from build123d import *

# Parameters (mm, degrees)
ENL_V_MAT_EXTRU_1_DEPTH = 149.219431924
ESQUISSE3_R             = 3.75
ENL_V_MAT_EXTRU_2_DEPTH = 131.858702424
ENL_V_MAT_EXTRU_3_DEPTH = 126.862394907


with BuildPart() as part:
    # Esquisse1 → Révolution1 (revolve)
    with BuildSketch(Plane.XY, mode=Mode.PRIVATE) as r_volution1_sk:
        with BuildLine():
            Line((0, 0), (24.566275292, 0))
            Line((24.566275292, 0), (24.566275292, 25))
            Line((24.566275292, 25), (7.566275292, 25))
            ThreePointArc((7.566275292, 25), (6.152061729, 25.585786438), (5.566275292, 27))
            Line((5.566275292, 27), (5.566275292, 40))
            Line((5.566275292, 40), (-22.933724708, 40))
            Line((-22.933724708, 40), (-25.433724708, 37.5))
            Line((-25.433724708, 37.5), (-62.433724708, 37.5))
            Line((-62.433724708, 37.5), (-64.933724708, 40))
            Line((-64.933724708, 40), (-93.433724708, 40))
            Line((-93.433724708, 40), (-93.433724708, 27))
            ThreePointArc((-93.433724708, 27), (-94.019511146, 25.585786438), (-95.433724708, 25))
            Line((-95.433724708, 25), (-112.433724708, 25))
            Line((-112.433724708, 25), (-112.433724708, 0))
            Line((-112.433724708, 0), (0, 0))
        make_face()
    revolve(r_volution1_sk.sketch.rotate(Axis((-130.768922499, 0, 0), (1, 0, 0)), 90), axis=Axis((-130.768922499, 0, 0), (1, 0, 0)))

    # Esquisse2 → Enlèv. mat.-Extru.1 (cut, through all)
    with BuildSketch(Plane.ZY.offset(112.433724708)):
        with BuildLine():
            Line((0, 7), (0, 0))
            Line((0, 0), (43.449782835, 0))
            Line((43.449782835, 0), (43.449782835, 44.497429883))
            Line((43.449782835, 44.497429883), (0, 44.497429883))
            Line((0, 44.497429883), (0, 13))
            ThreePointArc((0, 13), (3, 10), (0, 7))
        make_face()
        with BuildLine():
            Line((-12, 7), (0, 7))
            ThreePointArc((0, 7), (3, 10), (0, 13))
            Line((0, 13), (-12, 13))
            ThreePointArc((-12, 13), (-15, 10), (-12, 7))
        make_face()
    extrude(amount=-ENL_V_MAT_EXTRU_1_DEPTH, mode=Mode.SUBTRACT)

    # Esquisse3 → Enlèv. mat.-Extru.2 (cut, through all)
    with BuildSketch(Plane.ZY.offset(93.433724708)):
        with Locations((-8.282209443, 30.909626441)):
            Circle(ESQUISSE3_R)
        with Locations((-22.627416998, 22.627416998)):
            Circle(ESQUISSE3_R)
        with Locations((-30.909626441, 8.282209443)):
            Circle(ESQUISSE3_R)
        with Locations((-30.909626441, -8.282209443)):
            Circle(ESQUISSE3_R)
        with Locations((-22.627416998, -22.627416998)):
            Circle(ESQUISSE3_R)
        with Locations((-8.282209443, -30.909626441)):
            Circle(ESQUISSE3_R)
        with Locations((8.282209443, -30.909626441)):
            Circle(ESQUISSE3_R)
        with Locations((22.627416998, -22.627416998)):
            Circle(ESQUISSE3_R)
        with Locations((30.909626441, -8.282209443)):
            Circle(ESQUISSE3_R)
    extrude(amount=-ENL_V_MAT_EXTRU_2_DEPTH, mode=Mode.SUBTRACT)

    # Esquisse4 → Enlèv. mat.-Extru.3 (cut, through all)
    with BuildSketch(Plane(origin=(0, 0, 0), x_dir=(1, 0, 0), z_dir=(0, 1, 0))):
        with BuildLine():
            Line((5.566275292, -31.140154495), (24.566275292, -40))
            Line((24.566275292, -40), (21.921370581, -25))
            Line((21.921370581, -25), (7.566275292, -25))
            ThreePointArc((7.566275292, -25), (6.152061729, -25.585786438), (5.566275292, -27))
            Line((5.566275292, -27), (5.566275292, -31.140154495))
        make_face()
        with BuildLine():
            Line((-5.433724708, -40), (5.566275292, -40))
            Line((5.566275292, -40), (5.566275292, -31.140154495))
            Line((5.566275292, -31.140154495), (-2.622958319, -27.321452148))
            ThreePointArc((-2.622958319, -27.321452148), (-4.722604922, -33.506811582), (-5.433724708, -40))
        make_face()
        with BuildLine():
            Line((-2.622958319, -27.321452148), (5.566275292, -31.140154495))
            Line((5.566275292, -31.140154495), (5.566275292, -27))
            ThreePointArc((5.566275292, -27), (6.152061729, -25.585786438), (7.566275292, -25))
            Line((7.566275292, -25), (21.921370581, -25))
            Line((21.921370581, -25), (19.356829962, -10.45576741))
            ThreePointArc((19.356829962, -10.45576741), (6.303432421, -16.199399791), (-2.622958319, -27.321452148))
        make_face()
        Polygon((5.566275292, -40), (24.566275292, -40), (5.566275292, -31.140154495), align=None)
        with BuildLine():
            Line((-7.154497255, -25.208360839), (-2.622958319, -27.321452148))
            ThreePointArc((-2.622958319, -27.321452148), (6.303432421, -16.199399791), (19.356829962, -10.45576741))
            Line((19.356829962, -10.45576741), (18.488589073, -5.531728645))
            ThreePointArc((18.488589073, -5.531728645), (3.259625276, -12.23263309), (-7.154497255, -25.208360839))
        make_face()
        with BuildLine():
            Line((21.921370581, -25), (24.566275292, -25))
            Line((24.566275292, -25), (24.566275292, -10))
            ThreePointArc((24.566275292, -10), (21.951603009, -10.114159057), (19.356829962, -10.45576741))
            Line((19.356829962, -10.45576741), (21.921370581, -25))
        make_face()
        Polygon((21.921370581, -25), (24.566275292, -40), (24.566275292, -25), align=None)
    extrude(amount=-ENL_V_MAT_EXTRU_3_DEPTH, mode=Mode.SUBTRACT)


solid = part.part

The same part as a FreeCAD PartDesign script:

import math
import FreeCAD as App
import Part
import Sketcher
Q = App.Units.Quantity

doc = App.newDocument("Part")
body = doc.addObject("PartDesign::Body", "Body")

# Sketch on XY plane
sketch1 = body.newObject("Sketcher::SketchObject", "Sketch")
sketch1.AttachmentSupport = (doc.getObject("XY_Plane"), [""])
sketch1.MapMode = "FlatFace"
sketch1.addGeometry([
    Part.LineSegment(App.Vector(24.6, 0, 0), App.Vector(24.6, 25, 0)),  # 0
    Part.LineSegment(App.Vector(24.6, 25, 0), App.Vector(7.6, 25, 0)),  # 1
    Part.ArcOfCircle(Part.Circle(App.Vector(7.6, 27, 0), App.Vector(0, 0, 1), 2), math.radians(180), math.radians(270)),  # 2
    Part.LineSegment(App.Vector(5.6, 27, 0), App.Vector(5.6, 40, 0)),  # 3
    Part.LineSegment(App.Vector(5.6, 40, 0), App.Vector(-22.9, 40, 0)),  # 4
    Part.LineSegment(App.Vector(-22.9, 40, 0), App.Vector(-25.4, 37.5, 0)),  # 5
    Part.LineSegment(App.Vector(-25.4, 37.5, 0), App.Vector(-62.4, 37.5, 0)),  # 6
    Part.LineSegment(App.Vector(-62.4, 37.5, 0), App.Vector(-64.9, 40, 0)),  # 7
    Part.LineSegment(App.Vector(-64.9, 40, 0), App.Vector(-93.4, 40, 0)),  # 8
    Part.LineSegment(App.Vector(-93.4, 40, 0), App.Vector(-93.4, 27, 0)),  # 9
    Part.ArcOfCircle(Part.Circle(App.Vector(-95.4, 27, 0), App.Vector(0, 0, 1), 2), math.radians(-90), math.radians(0)),  # 10
    Part.LineSegment(App.Vector(-95.4, 25, 0), App.Vector(-112.4, 25, 0)),  # 11
    Part.LineSegment(App.Vector(-112.4, 25, 0), App.Vector(-112.4, 0, 0)),  # 12
    Part.LineSegment(App.Vector(-112.4, 0, 0), App.Vector(24.6, 0, 0)),  # 13
], False)
sketch1.addConstraint([
    Sketcher.Constraint("Coincident", 0, 2, 1, 1),
    Sketcher.Constraint("Tangent", 1, 2, 2, 2),
    Sketcher.Constraint("Tangent", 2, 1, 3, 1),
    Sketcher.Constraint("Coincident", 3, 2, 4, 1),
    Sketcher.Constraint("Coincident", 4, 2, 5, 1),
    Sketcher.Constraint("Coincident", 5, 2, 6, 1),
    Sketcher.Constraint("Coincident", 6, 2, 7, 1),
    Sketcher.Constraint("Coincident", 7, 2, 8, 1),
    Sketcher.Constraint("Coincident", 8, 2, 9, 1),
    Sketcher.Constraint("Tangent", 9, 2, 10, 2),
    Sketcher.Constraint("Tangent", 10, 1, 11, 1),
    Sketcher.Constraint("Coincident", 11, 2, 12, 1),
    Sketcher.Constraint("Coincident", 12, 2, 13, 1),
    Sketcher.Constraint("Coincident", 13, 2, 0, 1),
    Sketcher.Constraint("Vertical", 0),
    Sketcher.Constraint("Horizontal", 1),
    Sketcher.Constraint("Vertical", 3),
    Sketcher.Constraint("Horizontal", 4),
    Sketcher.Constraint("Horizontal", 6),
    Sketcher.Constraint("Horizontal", 8),
    Sketcher.Constraint("Vertical", 9),
    Sketcher.Constraint("Horizontal", 11),
    Sketcher.Constraint("Vertical", 12),
    Sketcher.Constraint("Horizontal", 13),
    Sketcher.Constraint("Equal", 2, 10),
    Sketcher.Constraint("PointOnObject", 12, 2, -1),
    Sketcher.Constraint("Perpendicular", 5, 7),
    Sketcher.Constraint("Horizontal", 2, 3, 10, 3),
    Sketcher.Constraint("Horizontal", 4, 2, 7, 2),
    Sketcher.Constraint("Equal", 4, 8),
    Sketcher.Constraint("Equal", 1, 11),
    Sketcher.Constraint("Equal", 5, 7),
    Sketcher.Constraint("Radius", 2, Q("2 mm")),
    Sketcher.Constraint("DistanceX", 1, 2, 1, 1, Q("17 mm")),
    Sketcher.Constraint("DistanceX", 6, 2, 6, 1, Q("37 mm")),
    Sketcher.Constraint("DistanceX", 13, 1, 13, 2, Q("137 mm")),
    Sketcher.Constraint("DistanceY", 0, 1, 0, 2, Q("25 mm")),
    Sketcher.Constraint("DistanceY", 3, 1, 3, 2, Q("13 mm")),
    Sketcher.Constraint("DistanceX", 4, 2, 4, 1, Q("28.5 mm")),
    Sketcher.Constraint("DistanceX", -1, 1, 2, 3, Q("7.566275 mm")),
])
revolution = body.newObject("PartDesign::Revolution", "Revolution")
revolution.Profile = sketch1
revolution.ReferenceAxis = (sketch1, ["H_Axis"])
revolution.Angle = 360

# Sketch on YZ plane
sketch2 = body.newObject("Sketcher::SketchObject", "Sketch001")
sketch2.AttachmentSupport = (doc.getObject("YZ_Plane"), [""])
sketch2.MapMode = "FlatFace"
sketch2.AttachmentOffset = App.Placement(App.Vector(0, 0, -112.433725), App.Rotation())
sketch2.addGeometry([
    Part.LineSegment(App.Vector(7, 0, 0), App.Vector(0, 0, 0)),  # 0
    Part.LineSegment(App.Vector(0, 0, 0), App.Vector(0, 43.4, 0)),  # 1
    Part.LineSegment(App.Vector(0, 43.4, 0), App.Vector(44.5, 43.4, 0)),  # 2
    Part.LineSegment(App.Vector(44.5, 43.4, 0), App.Vector(44.5, 0, 0)),  # 3
    Part.LineSegment(App.Vector(44.5, 0, 0), App.Vector(13, 0, 0)),  # 4
    Part.LineSegment(App.Vector(13, 0, 0), App.Vector(13, -12, 0)),  # 5
    Part.ArcOfCircle(Part.Circle(App.Vector(10, -12, 0), App.Vector(0, 0, 1), 3), math.radians(180), math.radians(360)),  # 6
    Part.LineSegment(App.Vector(7, -12, 0), App.Vector(7, 0, 0)),  # 7
], False)
sketch2.addConstraint([
    Sketcher.Constraint("Coincident", 0, 2, 1, 1),
    Sketcher.Constraint("Coincident", 1, 2, 2, 1),
    Sketcher.Constraint("Coincident", 2, 2, 3, 1),
    Sketcher.Constraint("Coincident", 3, 2, 4, 1),
    Sketcher.Constraint("Coincident", 4, 2, 5, 1),
    Sketcher.Constraint("Tangent", 5, 2, 6, 2),
    Sketcher.Constraint("Tangent", 6, 1, 7, 1),
    Sketcher.Constraint("Coincident", 7, 2, 0, 1),
    Sketcher.Constraint("Horizontal", 0),
    Sketcher.Constraint("Vertical", 1),
    Sketcher.Constraint("Horizontal", 2),
    Sketcher.Constraint("Vertical", 3),
    Sketcher.Constraint("Horizontal", 4),
    Sketcher.Constraint("Vertical", 5),
    Sketcher.Constraint("Vertical", 7),
    Sketcher.Constraint("Coincident", 0, 2, -1, 1),
    Sketcher.Constraint("PointOnObject", 3, 2, -1),
    Sketcher.Constraint("Radius", 6, Q("3 mm")),
    Sketcher.Constraint("DistanceX", 0, 2, 0, 1, Q("7 mm")),
    Sketcher.Constraint("DistanceY", 5, 2, 5, 1, Q("12 mm")),
    Sketcher.Constraint("DistanceX", 2, 1, 2, 2, Q("44.49743 mm")),
    Sketcher.Constraint("DistanceY", 1, 1, 1, 2, Q("43.449783 mm")),
])
pocket1 = body.newObject("PartDesign::Pocket", "Pocket")
pocket1.Profile = sketch2
pocket1.Type = "ThroughAll"
pocket1.Reversed = True

# Sketch on YZ plane
sketch3 = body.newObject("Sketcher::SketchObject", "Sketch002")
sketch3.AttachmentSupport = (doc.getObject("YZ_Plane"), [""])
sketch3.MapMode = "FlatFace"
sketch3.AttachmentOffset = App.Placement(App.Vector(0, 0, -93.433725), App.Rotation())
sketch3.addGeometry([
    Part.Circle(App.Vector(30.9, -8.3, 0), App.Vector(0, 0, 1), 3.8),  # 0
    Part.Circle(App.Vector(22.6, -22.6, 0), App.Vector(0, 0, 1), 3.8),  # 1
    Part.Circle(App.Vector(8.3, -30.9, 0), App.Vector(0, 0, 1), 3.8),  # 2
    Part.Circle(App.Vector(-8.3, -30.9, 0), App.Vector(0, 0, 1), 3.8),  # 3
    Part.Circle(App.Vector(-22.6, -22.6, 0), App.Vector(0, 0, 1), 3.8),  # 4
    Part.Circle(App.Vector(-30.9, -8.3, 0), App.Vector(0, 0, 1), 3.8),  # 5
    Part.Circle(App.Vector(-30.9, 8.3, 0), App.Vector(0, 0, 1), 3.8),  # 6
    Part.Circle(App.Vector(-22.6, 22.6, 0), App.Vector(0, 0, 1), 3.8),  # 7
    Part.Circle(App.Vector(-8.3, 30.9, 0), App.Vector(0, 0, 1), 3.8),  # 8
], False)
sketch3.addConstraint([
    Sketcher.Constraint("Equal", 0, 1),
    Sketcher.Constraint("Equal", 1, 2),
    Sketcher.Constraint("Equal", 2, 3),
    Sketcher.Constraint("Equal", 3, 4),
    Sketcher.Constraint("Equal", 4, 5),
    Sketcher.Constraint("Equal", 5, 6),
    Sketcher.Constraint("Equal", 6, 7),
    Sketcher.Constraint("Equal", 7, 8),
    Sketcher.Constraint("Symmetric", 0, 3, 6, 3, -1, 1),
    Sketcher.Constraint("Symmetric", 1, 3, 7, 3, -1, 1),
    Sketcher.Constraint("Symmetric", 2, 3, 8, 3, -1, 1),
    Sketcher.Constraint("Symmetric", 2, 3, 3, 3, -2),
    Sketcher.Constraint("Symmetric", 1, 3, 4, 3, -2),
    Sketcher.Constraint("Symmetric", 0, 3, 5, 3, -2),
    Sketcher.Constraint("Diameter", 0, Q("7.5 mm")),
    Sketcher.Constraint("DistanceY", 0, 3, -1, 1, Q("8.282209 mm")),
    Sketcher.Constraint("DistanceX", -1, 1, 2, 3, Q("8.282209 mm")),
    Sketcher.Constraint("DistanceX", 1, 3, 0, 3, Q("8.282209 mm")),
    Sketcher.Constraint("DistanceY", 2, 3, 1, 3, Q("8.282209 mm")),
    Sketcher.Constraint("DistanceX", -1, 1, 0, 3, Q("30.909626 mm")),
    Sketcher.Constraint("DistanceY", 1, 3, -1, 1, Q("22.627417 mm")),
])
pocket2 = body.newObject("PartDesign::Pocket", "Pocket001")
pocket2.Profile = sketch3
pocket2.Type = "ThroughAll"
pocket2.Reversed = True

# Sketch on XZ plane
sketch4 = body.newObject("Sketcher::SketchObject", "Sketch003")
sketch4.AttachmentSupport = (doc.getObject("XZ_Plane"), [""])
sketch4.MapMode = "FlatFace"
sketch4.addGeometry([
    Part.ArcOfCircle(Part.Circle(App.Vector(25, 40, 0), App.Vector(0, 0, 1), 30), math.radians(-100), math.radians(-90)),  # 0
    Part.LineSegment(App.Vector(19, 10, 0), App.Vector(18, 6, 0)),  # 1
    Part.ArcOfCircle(Part.Circle(App.Vector(25, 40, 0), App.Vector(0, 0, 1), 35), math.radians(-155), math.radians(-100)),  # 2
    Part.LineSegment(App.Vector(-7, 25, 0), App.Vector(-3, 27, 0)),  # 3
    Part.ArcOfCircle(Part.Circle(App.Vector(25, 40, 0), App.Vector(0, 0, 1), 30), math.radians(180), math.radians(205)),  # 4
    Part.LineSegment(App.Vector(-5, 40, 0), App.Vector(25, 40, 0)),  # 5
    Part.LineSegment(App.Vector(25, 40, 0), App.Vector(25, 10, 0)),  # 6
], False)
sketch4.addConstraint([
    Sketcher.Constraint("Coincident", 0, 1, 1, 1),
    Sketcher.Constraint("Coincident", 1, 2, 2, 2),
    Sketcher.Constraint("Coincident", 2, 1, 3, 1),
    Sketcher.Constraint("Coincident", 3, 2, 4, 2),
    Sketcher.Constraint("Coincident", 4, 1, 5, 1),
    Sketcher.Constraint("Coincident", 5, 2, 6, 1),
    Sketcher.Constraint("Coincident", 6, 2, 0, 2),
    Sketcher.Constraint("Horizontal", 5),
    Sketcher.Constraint("Vertical", 6),
    Sketcher.Constraint("Coincident", 2, 3, 0, 3),
    Sketcher.Constraint("Coincident", 4, 3, 0, 3),
    Sketcher.Constraint("Coincident", 5, 2, 0, 3),
    Sketcher.Constraint("Equal", 0, 4),
    Sketcher.Constraint("Radius", 0, Q("30 mm")),
    Sketcher.Constraint("Radius", 2, Q("35 mm")),
    Sketcher.Constraint("Angle", 1, Q("-100 deg")),
    Sketcher.Constraint("Angle", 3, Q("25 deg")),
    Sketcher.Constraint("DistanceY", -1, 1, 0, 3, Q("40 mm")),
    Sketcher.Constraint("DistanceX", -1, 1, 0, 1, Q("19.35683 mm")),
    Sketcher.Constraint("DistanceY", -1, 1, 1, 2, Q("5.531729 mm")),
    Sketcher.Constraint("DistanceY", -1, 1, 2, 1, Q("25.208361 mm")),
])
pocket3 = body.newObject("PartDesign::Pocket", "Pocket002")
pocket3.Profile = sketch4
pocket3.Type = "ThroughAll"
pocket3.Reversed = True

doc.recompute()
